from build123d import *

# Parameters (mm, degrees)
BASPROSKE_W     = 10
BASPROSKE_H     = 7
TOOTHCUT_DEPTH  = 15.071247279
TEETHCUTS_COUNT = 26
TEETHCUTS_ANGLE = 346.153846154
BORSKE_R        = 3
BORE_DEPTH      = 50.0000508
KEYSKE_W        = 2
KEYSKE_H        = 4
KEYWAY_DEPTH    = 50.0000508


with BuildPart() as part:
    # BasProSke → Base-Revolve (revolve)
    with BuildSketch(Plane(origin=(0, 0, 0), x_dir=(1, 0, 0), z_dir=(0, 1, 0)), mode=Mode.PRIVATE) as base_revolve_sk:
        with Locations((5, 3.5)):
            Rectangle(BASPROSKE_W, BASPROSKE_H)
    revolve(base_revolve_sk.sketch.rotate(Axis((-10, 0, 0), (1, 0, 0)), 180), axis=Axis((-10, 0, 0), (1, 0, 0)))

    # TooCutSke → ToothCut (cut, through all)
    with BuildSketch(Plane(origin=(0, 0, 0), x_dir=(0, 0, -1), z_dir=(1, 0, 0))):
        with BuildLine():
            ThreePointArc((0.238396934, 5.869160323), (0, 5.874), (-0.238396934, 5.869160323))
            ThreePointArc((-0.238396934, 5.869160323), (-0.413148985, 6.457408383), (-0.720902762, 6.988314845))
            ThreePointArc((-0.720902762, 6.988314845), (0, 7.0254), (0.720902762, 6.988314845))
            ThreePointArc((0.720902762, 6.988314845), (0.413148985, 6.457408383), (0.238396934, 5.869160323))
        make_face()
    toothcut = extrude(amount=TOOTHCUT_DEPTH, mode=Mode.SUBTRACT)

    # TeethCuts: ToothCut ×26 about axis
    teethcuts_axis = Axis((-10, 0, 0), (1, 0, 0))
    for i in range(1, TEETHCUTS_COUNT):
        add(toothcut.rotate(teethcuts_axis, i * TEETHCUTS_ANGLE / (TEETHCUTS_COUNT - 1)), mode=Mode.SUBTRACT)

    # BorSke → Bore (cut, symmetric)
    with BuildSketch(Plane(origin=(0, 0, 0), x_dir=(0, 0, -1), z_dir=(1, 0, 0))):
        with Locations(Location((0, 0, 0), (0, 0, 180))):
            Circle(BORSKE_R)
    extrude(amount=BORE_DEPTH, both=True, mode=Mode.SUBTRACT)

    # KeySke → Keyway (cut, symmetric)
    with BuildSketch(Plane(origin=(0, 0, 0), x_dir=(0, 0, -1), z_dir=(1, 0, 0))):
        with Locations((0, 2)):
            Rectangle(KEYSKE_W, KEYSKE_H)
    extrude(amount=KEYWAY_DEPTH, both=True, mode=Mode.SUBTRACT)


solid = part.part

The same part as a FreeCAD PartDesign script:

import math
import FreeCAD as App
import Part
import Sketcher

V = App.Vector

doc = App.newDocument("Part")
body = doc.addObject("PartDesign::Body", "Body")

# Sketch on XZ plane
sketch1 = body.newObject("Sketcher::SketchObject", "Sketch")
sketch1.AttachmentSupport = (doc.getObject("XZ_Plane"), [""])
sketch1.MapMode = "FlatFace"
sketch1.addGeometry(Part.LineSegment(V(0, -7, 0), V(0, 0, 0)), False)
sketch1.addGeometry(Part.LineSegment(V(0, 0, 0), V(10, 0, 0)), False)
sketch1.addGeometry(Part.LineSegment(V(10, 0, 0), V(10, -7, 0)), False)
sketch1.addGeometry(Part.LineSegment(V(10, -7, 0), V(0, -7, 0)), False)
sketch1.addConstraint(Sketcher.Constraint("Coincident", 0, 2, 1, 1))
sketch1.addConstraint(Sketcher.Constraint("Coincident", 1, 2, 2, 1))
sketch1.addConstraint(Sketcher.Constraint("Coincident", 2, 2, 3, 1))
sketch1.addConstraint(Sketcher.Constraint("Coincident", 3, 2, 0, 1))
sketch1.addConstraint(Sketcher.Constraint("Vertical", 0))
sketch1.addConstraint(Sketcher.Constraint("Horizontal", 1))
sketch1.addConstraint(Sketcher.Constraint("Vertical", 2))
sketch1.addConstraint(Sketcher.Constraint("Horizontal", 3))
sketch1.addConstraint(Sketcher.Constraint("Coincident", 0, 2, -1, 1))
sketch1.addConstraint(Sketcher.Constraint("DistanceX", 1, 1, 1, 2, 10.0))
sketch1.addConstraint(Sketcher.Constraint("DistanceY", 0, 1, 0, 2, 7.0))
revolution = body.newObject("PartDesign::Revolution", "Revolution")
revolution.Profile = sketch1
revolution.ReferenceAxis = (sketch1, ["H_Axis"])
revolution.Angle = 360

# Sketch on YZ plane
sketch2 = body.newObject("Sketcher::SketchObject", "Sketch001")
sketch2.AttachmentSupport = (doc.getObject("YZ_Plane"), [""])
sketch2.MapMode = "FlatFace"
sketch2.addGeometry(Part.ArcOfCircle(Part.Circle(V(0, 0, 0), V(0, 0, 1), 5.87), math.radians(-2.33), math.radians(2.33)), False)
sketch2.addGeometry(Part.ArcOfCircle(Part.Circle(V(5.43, -2.8, 0), V(0, 0, 1), 2.6), math.radians(53), math.radians(80)), False)
sketch2.addGeometry(Part.ArcOfCircle(Part.Circle(V(0, 0, 0), V(0, 0, 1), 7.03), math.radians(-5.89), math.radians(5.89)), False)
sketch2.addGeometry(Part.ArcOfCircle(Part.Circle(V(5.43, 2.8, 0), V(0, 0, 1), 2.6), math.radians(-80), math.radians(-53)), False)
sketch2.addConstraint(Sketcher.Constraint("Coincident", 0, 1, 1, 2))
sketch2.addConstraint(Sketcher.Constraint("Coincident", 1, 1, 2, 1))
sketch2.addConstraint(Sketcher.Constraint("Coincident", 2, 2, 3, 2))
sketch2.addConstraint(Sketcher.Constraint("Coincident", 3, 1, 0, 2))
sketch2.addConstraint(Sketcher.Constraint("Coincident", 0, 3, -1, 1))
sketch2.addConstraint(Sketcher.Constraint("Coincident", 2, 3, -1, 1))
sketch2.addConstraint(Sketcher.Constraint("Equal", 1, 3))
sketch2.addConstraint(Sketcher.Constraint("Symmetric", 1, 3, 3, 3, -1))
sketch2.addConstraint(Sketcher.Constraint("Radius", 1, 2.6))
sketch2.addConstraint(Sketcher.Constraint("Radius", 0, 5.874))
sketch2.addConstraint(Sketcher.Constraint("Radius", 2, 7.0254))
sketch2.addConstraint(Sketcher.Constraint("DistanceY", 0, 1, 3, 3, 3.039102))
sketch2.addConstraint(Sketcher.Constraint("DistanceY", 0, 1, 2, 2, 0.9593))
pocket1 = body.newObject("PartDesign::Pocket", "Pocket")
pocket1.Profile = sketch2
pocket1.Type = "ThroughAll"
pocket1.Reversed = True
doc.recompute()

polarpattern = body.newObject("PartDesign::PolarPattern", "PolarPattern")
polarpattern.Originals = [pocket1]
polarpattern.Axis = (doc.getObject("X_Axis"), [""])
polarpattern.Angle = 360
polarpattern.Occurrences = 26
body.Tip = polarpattern

# Sketch on YZ plane
sketch3 = body.newObject("Sketcher::SketchObject", "Sketch002")
sketch3.AttachmentSupport = (doc.getObject("YZ_Plane"), [""])
sketch3.MapMode = "FlatFace"
sketch3.addGeometry(Part.Circle(V(0, 0, 0), V(0, 0, 1), 3), False)
sketch3.addConstraint(Sketcher.Constraint("Coincident", 0, 3, -1, 1))
sketch3.addConstraint(Sketcher.Constraint("Diameter", 0, 6.0))
pocket2 = body.newObject("PartDesign::Pocket", "Pocket001")
pocket2.Profile = sketch3
pocket2.Length = 100.000102
pocket2.Midplane = True

# Sketch on YZ plane
sketch4 = body.newObject("Sketcher::SketchObject", "Sketch003")
sketch4.AttachmentSupport = (doc.getObject("YZ_Plane"), [""])
sketch4.MapMode = "FlatFace"
sketch4.addGeometry(Part.LineSegment(V(4, 1, 0), V(0, 1, 0)), False)
sketch4.addGeometry(Part.LineSegment(V(0, 1, 0), V(0, -1, 0)), False)
sketch4.addGeometry(Part.LineSegment(V(0, -1, 0), V(4, -1, 0)), False)
sketch4.addGeometry(Part.LineSegment(V(4, -1, 0), V(4, 1, 0)), False)
sketch4.addConstraint(Sketcher.Constraint("Coincident", 0, 2, 1, 1))
sketch4.addConstraint(Sketcher.Constraint("Coincident", 1, 2, 2, 1))
sketch4.addConstraint(Sketcher.Constraint("Coincident", 2, 2, 3, 1))
sketch4.addConstraint(Sketcher.Constraint("Coincident", 3, 2, 0, 1))
sketch4.addConstraint(Sketcher.Constraint("Horizontal", 0))
sketch4.addConstraint(Sketcher.Constraint("Vertical", 1))
sketch4.addConstraint(Sketcher.Constraint("Horizontal", 2))
sketch4.addConstraint(Sketcher.Constraint("Vertical", 3))
sketch4.addConstraint(Sketcher.Constraint("Symmetric", 0, 2, 1, 2, -1, 1))
sketch4.addConstraint(Sketcher.Constraint("DistanceX", 0, 2, 0, 1, 4.0))
sketch4.addConstraint(Sketcher.Constraint("DistanceY", 1, 2, 1, 1, 2.0))
pocket3 = body.newObject("PartDesign::Pocket", "Pocket002")
pocket3.Profile = sketch4
pocket3.Length = 100.000102
pocket3.Midplane = True

doc.recompute()
